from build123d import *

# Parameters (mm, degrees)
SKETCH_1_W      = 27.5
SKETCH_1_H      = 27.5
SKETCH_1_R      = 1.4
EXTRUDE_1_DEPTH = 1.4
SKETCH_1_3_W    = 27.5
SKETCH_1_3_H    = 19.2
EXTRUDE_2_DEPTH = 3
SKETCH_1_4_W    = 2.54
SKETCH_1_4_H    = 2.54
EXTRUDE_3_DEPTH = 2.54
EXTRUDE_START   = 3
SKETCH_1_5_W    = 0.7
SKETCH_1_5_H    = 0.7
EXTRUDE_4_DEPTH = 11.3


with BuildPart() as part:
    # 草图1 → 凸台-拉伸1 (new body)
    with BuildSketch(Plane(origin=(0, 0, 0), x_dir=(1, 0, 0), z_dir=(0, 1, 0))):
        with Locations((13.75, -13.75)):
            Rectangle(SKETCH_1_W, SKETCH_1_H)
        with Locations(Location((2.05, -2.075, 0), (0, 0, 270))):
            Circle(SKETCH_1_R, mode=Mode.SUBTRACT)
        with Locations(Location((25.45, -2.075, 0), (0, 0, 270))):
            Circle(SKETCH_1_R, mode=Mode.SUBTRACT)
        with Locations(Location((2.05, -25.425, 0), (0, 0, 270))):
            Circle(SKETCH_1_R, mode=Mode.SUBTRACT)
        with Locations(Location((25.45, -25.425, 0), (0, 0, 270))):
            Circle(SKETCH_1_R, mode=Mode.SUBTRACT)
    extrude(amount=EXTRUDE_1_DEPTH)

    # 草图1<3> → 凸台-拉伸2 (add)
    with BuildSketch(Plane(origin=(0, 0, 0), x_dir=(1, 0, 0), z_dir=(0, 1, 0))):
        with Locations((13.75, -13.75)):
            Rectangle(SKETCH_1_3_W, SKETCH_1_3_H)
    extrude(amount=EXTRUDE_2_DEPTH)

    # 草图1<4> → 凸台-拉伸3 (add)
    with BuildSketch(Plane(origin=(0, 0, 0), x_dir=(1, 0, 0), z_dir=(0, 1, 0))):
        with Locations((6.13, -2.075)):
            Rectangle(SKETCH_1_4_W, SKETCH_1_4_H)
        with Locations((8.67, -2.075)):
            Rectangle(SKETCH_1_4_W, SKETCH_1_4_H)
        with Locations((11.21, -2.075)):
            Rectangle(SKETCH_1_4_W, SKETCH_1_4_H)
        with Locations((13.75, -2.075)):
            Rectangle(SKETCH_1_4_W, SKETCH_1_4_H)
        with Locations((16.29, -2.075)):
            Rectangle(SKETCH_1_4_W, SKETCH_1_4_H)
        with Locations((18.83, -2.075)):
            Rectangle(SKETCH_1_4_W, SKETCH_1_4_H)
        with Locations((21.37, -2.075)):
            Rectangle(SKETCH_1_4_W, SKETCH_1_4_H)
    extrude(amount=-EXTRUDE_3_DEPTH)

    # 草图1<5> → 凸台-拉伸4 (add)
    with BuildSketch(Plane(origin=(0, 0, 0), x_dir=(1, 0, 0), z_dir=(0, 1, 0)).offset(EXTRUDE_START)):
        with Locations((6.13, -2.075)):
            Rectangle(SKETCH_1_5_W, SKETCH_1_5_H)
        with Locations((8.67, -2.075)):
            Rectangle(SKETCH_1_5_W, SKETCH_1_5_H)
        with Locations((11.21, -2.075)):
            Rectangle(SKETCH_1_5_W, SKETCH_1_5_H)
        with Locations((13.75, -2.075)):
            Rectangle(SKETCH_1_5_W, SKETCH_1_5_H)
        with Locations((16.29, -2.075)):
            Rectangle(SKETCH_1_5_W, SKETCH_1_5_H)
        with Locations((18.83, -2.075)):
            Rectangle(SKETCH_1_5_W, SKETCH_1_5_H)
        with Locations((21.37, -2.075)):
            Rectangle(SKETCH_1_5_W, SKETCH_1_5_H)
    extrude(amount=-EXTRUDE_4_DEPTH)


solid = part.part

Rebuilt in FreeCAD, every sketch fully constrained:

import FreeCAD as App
import Part
import Sketcher
from FreeCAD import Vector
Q = App.Units.Quantity

doc = App.newDocument("Part")
params = doc.addObject("Spreadsheet::Sheet", "Params")
for row, (alias, value) in enumerate([
    ("sketch1_diameter", "2.8 mm"),
    ("sketch1_width", "27.5 mm"),
    ("pad1_length", "1.4 mm"),
    ("sketch2_width", "27.5 mm"),
    ("sketch2_height", "19.2 mm"),
    ("pad2_length", "3 mm"),
    ("sketch3_width", "17.78 mm"),
    ("sketch3_height", "2.54 mm"),
    ("pad3_length", "2.54 mm"),
    ("sketch4_width", "0.7 mm"),
    ("pad4_length", "11.3 mm"),
], start=1):
    params.set(f"A{row}", alias)
    params.set(f"B{row}", "=" + value)
    params.setAlias(f"B{row}", alias)

body = doc.addObject("PartDesign::Body", "Body")

sketch1 = body.newObject("Sketcher::SketchObject", "Sketch")
sketch1.AttachmentSupport = (doc.getObject("XZ_Plane"), [""])
sketch1.MapMode = "FlatFace"
sketch1.addGeometry(Part.LineSegment(Vector(0, 0, 0), Vector(0, 27.5, 0)), False)
sketch1.addGeometry(Part.LineSegment(Vector(0, 27.5, 0), Vector(27.5, 27.5, 0)), False)
sketch1.addGeometry(Part.LineSegment(Vector(27.5, 27.5, 0), Vector(27.5, 0, 0)), False)
sketch1.addGeometry(Part.LineSegment(Vector(27.5, 0, 0), Vector(0, 0, 0)), False)
sketch1.addGeometry(Part.Circle(Vector(2, 25.4, 0), Vector(0, 0, 1), 1.4), False)
sketch1.addGeometry(Part.Circle(Vector(25.4, 25.4, 0), Vector(0, 0, 1), 1.4), False)
sketch1.addGeometry(Part.Circle(Vector(2, 2.1, 0), Vector(0, 0, 1), 1.4), False)
sketch1.addGeometry(Part.Circle(Vector(25.4, 2.1, 0), Vector(0, 0, 1), 1.4), False)
sketch1.addConstraint(Sketcher.Constraint("Coincident", 0, 2, 1, 1))
sketch1.addConstraint(Sketcher.Constraint("Coincident", 1, 2, 2, 1))
sketch1.addConstraint(Sketcher.Constraint("Coincident", 2, 2, 3, 1))
sketch1.addConstraint(Sketcher.Constraint("Coincident", 3, 2, 0, 1))
sketch1.addConstraint(Sketcher.Constraint("Vertical", 0))
sketch1.addConstraint(Sketcher.Constraint("Horizontal", 1))
sketch1.addConstraint(Sketcher.Constraint("Vertical", 2))
sketch1.addConstraint(Sketcher.Constraint("Horizontal", 3))
sketch1.addConstraint(Sketcher.Constraint("Coincident", 3, 2, -1, 1))
sketch1.addConstraint(Sketcher.Constraint("Equal", 4, 5))
sketch1.addConstraint(Sketcher.Constraint("Equal", 5, 6))
sketch1.addConstraint(Sketcher.Constraint("Equal", 6, 7))
sketch1.addConstraint(Sketcher.Constraint("Horizontal", 4, 3, 5, 3))
sketch1.addConstraint(Sketcher.Constraint("Horizontal", 6, 3, 7, 3))
sketch1.addConstraint(Sketcher.Constraint("Vertical", 4, 3, 6, 3))
sketch1.addConstraint(Sketcher.Constraint("Vertical", 5, 3, 7, 3))
sketch1.addConstraint(Sketcher.Constraint("Equal", 3, 0))
sketch1.addConstraint(Sketcher.Constraint("Diameter", 4, Q("2.8 mm")))
sketch1.addConstraint(Sketcher.Constraint("DistanceX", 1, 1, 1, 2, Q("27.5 mm")))
sketch1.addConstraint(Sketcher.Constraint("DistanceX", 4, 3, 5, 3, Q("23.4 mm")))
sketch1.addConstraint(Sketcher.Constraint("DistanceX", -1, 1, 4, 3, Q("2.05 mm")))
sketch1.addConstraint(Sketcher.Constraint("DistanceY", 6, 3, 4, 3, Q("23.35 mm")))
sketch1.addConstraint(Sketcher.Constraint("DistanceY", -1, 1, 4, 3, Q("25.425 mm")))
sketch1.setExpression("Constraints[17]", "Params.sketch1_diameter")
sketch1.setExpression("Constraints[18]", "Params.sketch1_width")
pad1 = body.newObject("PartDesign::Pad", "Pad")
pad1.Profile = sketch1
pad1.setExpression("Length", "Params.pad1_length")
pad1.Reversed = True

sketch2 = body.newObject("Sketcher::SketchObject", "Sketch001")
sketch2.AttachmentSupport = (doc.getObject("XZ_Plane"), [""])
sketch2.MapMode = "FlatFace"
sketch2.addGeometry(Part.LineSegment(Vector(0, 4, 0), Vector(0, 23, 0)), False)
sketch2.addGeometry(Part.LineSegment(Vector(0, 23, 0), Vector(28, 23, 0)), False)
sketch2.addGeometry(Part.LineSegment(Vector(28, 23, 0), Vector(28, 4, 0)), False)
sketch2.addGeometry(Part.LineSegment(Vector(28, 4, 0), Vector(0, 4, 0)), False)
sketch2.addConstraint(Sketcher.Constraint("Coincident", 0, 2, 1, 1))
sketch2.addConstraint(Sketcher.Constraint("Coincident", 1, 2, 2, 1))
sketch2.addConstraint(Sketcher.Constraint("Coincident", 2, 2, 3, 1))
sketch2.addConstraint(Sketcher.Constraint("Coincident", 3, 2, 0, 1))
sketch2.addConstraint(Sketcher.Constraint("Vertical", 0))
sketch2.addConstraint(Sketcher.Constraint("Horizontal", 1))
sketch2.addConstraint(Sketcher.Constraint("Vertical", 2))
sketch2.addConstraint(Sketcher.Constraint("Horizontal", 3))
sketch2.addConstraint(Sketcher.Constraint("PointOnObject", 0, 2, -2))
sketch2.addConstraint(Sketcher.Constraint("DistanceX", 1, 1, 1, 2, Q("27.5 mm")))
sketch2.addConstraint(Sketcher.Constraint("DistanceY", 0, 1, 0, 2, Q("19.2 mm")))
sketch2.addConstraint(Sketcher.Constraint("DistanceY", -1, 1, 0, 2, Q("23.35 mm")))
sketch2.setExpression("Constraints[9]", "Params.sketch2_width")
sketch2.setExpression("Constraints[10]", "Params.sketch2_height")
pad2 = body.newObject("PartDesign::Pad", "Pad001")
pad2.Profile = sketch2
pad2.setExpression("Length", "Params.pad2_length")
pad2.Reversed = True

sketch3 = body.newObject("Sketcher::SketchObject", "Sketch002")
sketch3.AttachmentSupport = (doc.getObject("XZ_Plane"), [""])
sketch3.MapMode = "FlatFace"
sketch3.addGeometry(Part.LineSegment(Vector(4.9, 0.8, 0), Vector(4.9, 3.3, 0)), False)
sketch3.addGeometry(Part.LineSegment(Vector(4.9, 3.3, 0), Vector(22.6, 3.3, 0)), False)
sketch3.addGeometry(Part.LineSegment(Vector(22.6, 3.3, 0), Vector(22.6, 0.8, 0)), False)
sketch3.addGeometry(Part.LineSegment(Vector(22.6, 0.8, 0), Vector(4.9, 0.8, 0)), False)
sketch3.addConstraint(Sketcher.Constraint("Coincident", 0, 2, 1, 1))
sketch3.addConstraint(Sketcher.Constraint("Coincident", 1, 2, 2, 1))
sketch3.addConstraint(Sketcher.Constraint("Coincident", 2, 2, 3, 1))
sketch3.addConstraint(Sketcher.Constraint("Coincident", 3, 2, 0, 1))
sketch3.addConstraint(Sketcher.Constraint("Vertical", 0))
sketch3.addConstraint(Sketcher.Constraint("Horizontal", 1))
sketch3.addConstraint(Sketcher.Constraint("Vertical", 2))
sketch3.addConstraint(Sketcher.Constraint("Horizontal", 3))
sketch3.addConstraint(Sketcher.Constraint("DistanceX", 1, 1, 1, 2, Q("17.78 mm")))
sketch3.addConstraint(Sketcher.Constraint("DistanceY", 0, 1, 0, 2, Q("2.54 mm")))
sketch3.addConstraint(Sketcher.Constraint("DistanceX", -1, 1, 0, 2, Q("4.86 mm")))
sketch3.addConstraint(Sketcher.Constraint("DistanceY", -1, 1, 0, 2, Q("3.345 mm")))
sketch3.setExpression("Constraints[8]", "Params.sketch3_width")
sketch3.setExpression("Constraints[9]", "Params.sketch3_height")
pad3 = body.newObject("PartDesign::Pad", "Pad002")
pad3.Profile = sketch3
pad3.setExpression("Length", "Params.pad3_length")

sketch4 = body.newObject("Sketcher::SketchObject", "Sketch003")
sketch4.AttachmentSupport = (doc.getObject("XZ_Plane"), [""])
sketch4.MapMode = "FlatFace"
sketch4.AttachmentOffset = App.Placement(Vector(0, 0, -3), App.Rotation())
sketch4.addGeometry(Part.LineSegment(Vector(5.8, 1.7, 0), Vector(5.8, 2.4, 0)), False)
sketch4.addGeometry(Part.LineSegment(Vector(5.8, 2.4, 0), Vector(6.5, 2.4, 0)), False)
sketch4.addGeometry(Part.LineSegment(Vector(6.5, 2.4, 0), Vector(6.5, 1.7, 0)), False)
sketch4.addGeometry(Part.LineSegment(Vector(6.5, 1.7, 0), Vector(5.8, 1.7, 0)), False)
sketch4.addGeometry(Part.LineSegment(Vector(8.3, 1.7, 0), Vector(8.3, 2.4, 0)), False)
sketch4.addGeometry(Part.LineSegment(Vector(8.3, 2.4, 0), Vector(9, 2.4, 0)), False)
sketch4.addGeometry(Part.LineSegment(Vector(9, 2.4, 0), Vector(9, 1.7, 0)), False)
sketch4.addGeometry(Part.LineSegment(Vector(9, 1.7, 0), Vector(8.3, 1.7, 0)), False)
sketch4.addGeometry(Part.LineSegment(Vector(10.9, 1.7, 0), Vector(10.9, 2.4, 0)), False)
sketch4.addGeometry(Part.LineSegment(Vector(10.9, 2.4, 0), Vector(11.6, 2.4, 0)), False)
sketch4.addGeometry(Part.LineSegment(Vector(11.6, 2.4, 0), Vector(11.6, 1.7, 0)), False)
sketch4.addGeometry(Part.LineSegment(Vector(11.6, 1.7, 0), Vector(10.9, 1.7, 0)), False)
sketch4.addGeometry(Part.LineSegment(Vector(13.4, 1.7, 0), Vector(13.4, 2.4, 0)), False)
sketch4.addGeometry(Part.LineSegment(Vector(13.4, 2.4, 0), Vector(14.1, 2.4, 0)), False)
sketch4.addGeometry(Part.LineSegment(Vector(14.1, 2.4, 0), Vector(14.1, 1.7, 0)), False)
sketch4.addGeometry(Part.LineSegment(Vector(14.1, 1.7, 0), Vector(13.4, 1.7, 0)), False)
sketch4.addGeometry(Part.LineSegment(Vector(15.9, 1.7, 0), Vector(15.9, 2.4, 0)), False)
sketch4.addGeometry(Part.LineSegment(Vector(15.9, 2.4, 0), Vector(16.6, 2.4, 0)), False)
sketch4.addGeometry(Part.LineSegment(Vector(16.6, 2.4, 0), Vector(16.6, 1.7, 0)), False)
sketch4.addGeometry(Part.LineSegment(Vector(16.6, 1.7, 0), Vector(15.9, 1.7, 0)), False)
sketch4.addGeometry(Part.LineSegment(Vector(18.5, 1.7, 0), Vector(18.5, 2.4, 0)), False)
sketch4.addGeometry(Part.LineSegment(Vector(18.5, 2.4, 0), Vector(19.2, 2.4, 0)), False)
sketch4.addGeometry(Part.LineSegment(Vector(19.2, 2.4, 0), Vector(19.2, 1.7, 0)), False)
sketch4.addGeometry(Part.LineSegment(Vector(19.2, 1.7, 0), Vector(18.5, 1.7, 0)), False)
sketch4.addGeometry(Part.LineSegment(Vector(21, 1.7, 0), Vector(21, 2.4, 0)), False)
sketch4.addGeometry(Part.LineSegment(Vector(21, 2.4, 0), Vector(21.7, 2.4, 0)), False)
sketch4.addGeometry(Part.LineSegment(Vector(21.7, 2.4, 0), Vector(21.7, 1.7, 0)), False)
sketch4.addGeometry(Part.LineSegment(Vector(21.7, 1.7, 0), Vector(21, 1.7, 0)), False)
sketch4.addConstraint(Sketcher.Constraint("Coincident", 0, 2, 1, 1))
sketch4.addConstraint(Sketcher.Constraint("Coincident", 1, 2, 2, 1))
sketch4.addConstraint(Sketcher.Constraint("Coincident", 2, 2, 3, 1))
sketch4.addConstraint(Sketcher.Constraint("Coincident", 3, 2, 0, 1))
sketch4.addConstraint(Sketcher.Constraint("Coincident", 4, 2, 5, 1))
sketch4.addConstraint(Sketcher.Constraint("Coincident", 5, 2, 6, 1))
sketch4.addConstraint(Sketcher.Constraint("Coincident", 6, 2, 7, 1))
sketch4.addConstraint(Sketcher.Constraint("Coincident", 7, 2, 4, 1))
sketch4.addConstraint(Sketcher.Constraint("Coincident", 8, 2, 9, 1))
sketch4.addConstraint(Sketcher.Constraint("Coincident", 9, 2, 10, 1))
sketch4.addConstraint(Sketcher.Constraint("Coincident", 10, 2, 11, 1))
sketch4.addConstraint(Sketcher.Constraint("Coincident", 11, 2, 8, 1))
sketch4.addConstraint(Sketcher.Constraint("Coincident", 12, 2, 13, 1))
sketch4.addConstraint(Sketcher.Constraint("Coincident", 13, 2, 14, 1))
sketch4.addConstraint(Sketcher.Constraint("Coincident", 14, 2, 15, 1))
sketch4.addConstraint(Sketcher.Constraint("Coincident", 15, 2, 12, 1))
sketch4.addConstraint(Sketcher.Constraint("Coincident", 16, 2, 17, 1))
sketch4.addConstraint(Sketcher.Constraint("Coincident", 17, 2, 18, 1))
sketch4.addConstraint(Sketcher.Constraint("Coincident", 18, 2, 19, 1))
sketch4.addConstraint(Sketcher.Constraint("Coincident", 19, 2, 16, 1))
sketch4.addConstraint(Sketcher.Constraint("Coincident", 20, 2, 21, 1))
sketch4.addConstraint(Sketcher.Constraint("Coincident", 21, 2, 22, 1))
sketch4.addConstraint(Sketcher.Constraint("Coincident", 22, 2, 23, 1))
sketch4.addConstraint(Sketcher.Constraint("Coincident", 23, 2, 20, 1))
sketch4.addConstraint(Sketcher.Constraint("Coincident", 24, 2, 25, 1))
sketch4.addConstraint(Sketcher.Constraint("Coincident", 25, 2, 26, 1))
sketch4.addConstraint(Sketcher.Constraint("Coincident", 26, 2, 27, 1))
sketch4.addConstraint(Sketcher.Constraint("Coincident", 27, 2, 24, 1))
sketch4.addConstraint(Sketcher.Constraint("Vertical", 0))
sketch4.addConstraint(Sketcher.Constraint("Horizontal", 1))
sketch4.addConstraint(Sketcher.Constraint("Vertical", 2))
sketch4.addConstraint(Sketcher.Constraint("Horizontal", 3))
sketch4.addConstraint(Sketcher.Constraint("Vertical", 4))
sketch4.addConstraint(Sketcher.Constraint("Horizontal", 5))
sketch4.addConstraint(Sketcher.Constraint("Vertical", 6))
sketch4.addConstraint(Sketcher.Constraint("Horizontal", 7))
sketch4.addConstraint(Sketcher.Constraint("Vertical", 8))
sketch4.addConstraint(Sketcher.Constraint("Horizontal", 9))
sketch4.addConstraint(Sketcher.Constraint("Vertical", 10))
sketch4.addConstraint(Sketcher.Constraint("Horizontal", 11))
sketch4.addConstraint(Sketcher.Constraint("Vertical", 12))
sketch4.addConstraint(Sketcher.Constraint("Horizontal", 13))
sketch4.addConstraint(Sketcher.Constraint("Vertical", 14))
sketch4.addConstraint(Sketcher.Constraint("Horizontal", 15))
sketch4.addConstraint(Sketcher.Constraint("Vertical", 16))
sketch4.addConstraint(Sketcher.Constraint("Horizontal", 17))
sketch4.addConstraint(Sketcher.Constraint("Vertical", 18))
sketch4.addConstraint(Sketcher.Constraint("Horizontal", 19))
sketch4.addConstraint(Sketcher.Constraint("Vertical", 20))
sketch4.addConstraint(Sketcher.Constraint("Horizontal", 21))
sketch4.addConstraint(Sketcher.Constraint("Vertical", 22))
sketch4.addConstraint(Sketcher.Constraint("Horizontal", 23))
sketch4.addConstraint(Sketcher.Constraint("Vertical", 24))
sketch4.addConstraint(Sketcher.Constraint("Horizontal", 25))
sketch4.addConstraint(Sketcher.Constraint("Vertical", 26))
sketch4.addConstraint(Sketcher.Constraint("Horizontal", 27))
sketch4.addConstraint(Sketcher.Constraint("Horizontal", 1, 2, 4, 2))
sketch4.addConstraint(Sketcher.Constraint("Horizontal", 3, 2, 6, 2))
sketch4.addConstraint(Sketcher.Constraint("Horizontal", 5, 2, 8, 2))
sketch4.addConstraint(Sketcher.Constraint("Horizontal", 7, 2, 10, 2))
sketch4.addConstraint(Sketcher.Constraint("Horizontal", 9, 2, 12, 2))
sketch4.addConstraint(Sketcher.Constraint("Horizontal", 11, 2, 14, 2))
sketch4.addConstraint(Sketcher.Constraint("Horizontal", 13, 2, 16, 2))
sketch4.addConstraint(Sketcher.Constraint("Horizontal", 15, 2, 18, 2))
sketch4.addConstraint(Sketcher.Constraint("Horizontal", 17, 2, 20, 2))
sketch4.addConstraint(Sketcher.Constraint("Horizontal", 19, 2, 22, 2))
sketch4.addConstraint(Sketcher.Constraint("Horizontal", 21, 2, 24, 2))
sketch4.addConstraint(Sketcher.Constraint("Horizontal", 23, 2, 26, 2))
sketch4.addConstraint(Sketcher.Constraint("Equal", 3, 5))
sketch4.addConstraint(Sketcher.Constraint("Equal", 7, 9))
sketch4.addConstraint(Sketcher.Constraint("Equal", 11, 13))
sketch4.addConstraint(Sketcher.Constraint("Equal", 15, 17))
sketch4.addConstraint(Sketcher.Constraint("Equal", 19, 21))
sketch4.addConstraint(Sketcher.Constraint("Equal", 23, 25))
sketch4.addConstraint(Sketcher.Constraint("Equal", 27, 0))
sketch4.addConstraint(Sketcher.Constraint("DistanceX", 1, 1, 1, 2, Q("0.7 mm")))
sketch4.addConstraint(Sketcher.Constraint("DistanceX", -1, 1, 12, 2, Q("13.4 mm")))
sketch4.addConstraint(Sketcher.Constraint("DistanceX", -1, 1, 0, 2, Q("5.78 mm")))
sketch4.addConstraint(Sketcher.Constraint("DistanceX", -1, 1, 4, 2, Q("8.32 mm")))
sketch4.addConstraint(Sketcher.Constraint("DistanceX", -1, 1, 8, 2, Q("10.86 mm")))
sketch4.addConstraint(Sketcher.Constraint("DistanceX", -1, 1, 16, 2, Q("15.94 mm")))
sketch4.addConstraint(Sketcher.Constraint("DistanceX", -1, 1, 20, 2, Q("18.48 mm")))
sketch4.addConstraint(Sketcher.Constraint("DistanceX", -1, 1, 24, 2, Q("21.02 mm")))
sketch4.addConstraint(Sketcher.Constraint("DistanceY", -1, 1, 0, 2, Q("2.425 mm")))
sketch4.setExpression("Constraints[75]", "Params.sketch4_width")
pad4 = body.newObject("PartDesign::Pad", "Pad003")
pad4.Profile = sketch4
pad4.setExpression("Length", "Params.pad4_length")

doc.recompute()
